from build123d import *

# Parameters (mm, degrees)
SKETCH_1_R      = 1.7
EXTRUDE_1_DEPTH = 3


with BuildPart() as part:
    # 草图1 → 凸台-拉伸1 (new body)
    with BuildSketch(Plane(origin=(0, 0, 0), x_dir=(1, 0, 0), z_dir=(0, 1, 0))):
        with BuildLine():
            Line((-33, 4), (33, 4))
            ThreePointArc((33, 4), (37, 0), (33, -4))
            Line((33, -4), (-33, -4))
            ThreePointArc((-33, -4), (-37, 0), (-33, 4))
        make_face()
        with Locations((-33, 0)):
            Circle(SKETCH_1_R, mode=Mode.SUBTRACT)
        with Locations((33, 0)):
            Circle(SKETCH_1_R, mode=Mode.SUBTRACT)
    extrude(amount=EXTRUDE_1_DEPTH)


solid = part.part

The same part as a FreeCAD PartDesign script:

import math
import FreeCAD as App
import Part
import Sketcher

doc = App.newDocument("Part")
body = doc.addObject("PartDesign::Body", "Body")

# Sketch on XZ plane
sketch1 = body.newObject("Sketcher::SketchObject", "Sketch")
sketch1.AttachmentSupport = (doc.getObject("XZ_Plane"), [""])
sketch1.MapMode = "FlatFace"
sketch1.addGeometry([
    Part.LineSegment(App.Vector(33, -4, 0), App.Vector(-33, -4, 0)),  # 0
    Part.ArcOfCircle(Part.Circle(App.Vector(-33, 0, 0), App.Vector(0, 0, 1), 4), math.radians(90), math.radians(270)),  # 1
    Part.LineSegment(App.Vector(-33, 4, 0), App.Vector(33, 4, 0)),  # 2
    Part.ArcOfCircle(Part.Circle(App.Vector(33, 0, 0), App.Vector(0, 0, 1), 4), math.radians(-90), math.radians(90)),  # 3
    Part.Circle(App.Vector(33, 0, 0), App.Vector(0, 0, 1), 1.7),  # 4
    Part.Circle(App.Vector(-33, 0, 0), App.Vector(0, 0, 1), 1.7),  # 5
], False)
sketch1.addConstraint([
    Sketcher.Constraint("Tangent", 0, 2, 1, 2),
    Sketcher.Constraint("Tangent", 1, 1, 2, 1),
    Sketcher.Constraint("Tangent", 2, 2, 3, 2),
    Sketcher.Constraint("Tangent", 3, 1, 0, 1),
    Sketcher.Constraint("Horizontal", 0),
    Sketcher.Constraint("Horizontal", 2),
    Sketcher.Constraint("Coincident", 4, 3, 3, 3),
    Sketcher.Constraint("Coincident", 5, 3, 1, 3),
    Sketcher.Constraint("Equal", 4, 5),
    Sketcher.Constraint("Symmetric", 1, 3, 3, 3, -1, 1),
    Sketcher.Constraint("Radius", 1, 4.0),
    Sketcher.Constraint("Diameter", 4, 3.4),
    Sketcher.Constraint("DistanceX", 0, 2, 0, 1, 66.0),
])
pad1 = body.newObject("PartDesign::Pad", "Pad")
pad1.Profile = sketch1
pad1.Length = 3
pad1.Reversed = True

doc.recompute()
